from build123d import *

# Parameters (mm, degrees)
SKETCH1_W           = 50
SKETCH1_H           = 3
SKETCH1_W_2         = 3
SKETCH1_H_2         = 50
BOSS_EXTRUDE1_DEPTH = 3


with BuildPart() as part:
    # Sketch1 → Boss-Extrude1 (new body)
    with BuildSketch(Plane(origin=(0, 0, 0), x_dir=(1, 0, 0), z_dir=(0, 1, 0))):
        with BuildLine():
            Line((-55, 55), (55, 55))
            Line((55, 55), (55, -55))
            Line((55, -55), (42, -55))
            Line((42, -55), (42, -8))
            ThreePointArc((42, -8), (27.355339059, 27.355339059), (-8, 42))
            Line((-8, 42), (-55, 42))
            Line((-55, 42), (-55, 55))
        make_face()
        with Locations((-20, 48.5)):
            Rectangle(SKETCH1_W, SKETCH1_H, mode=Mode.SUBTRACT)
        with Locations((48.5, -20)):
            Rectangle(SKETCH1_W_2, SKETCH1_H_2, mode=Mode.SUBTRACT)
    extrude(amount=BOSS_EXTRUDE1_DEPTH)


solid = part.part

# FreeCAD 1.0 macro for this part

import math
import FreeCAD as App
import Part
import Sketcher


def add_polygon(sketch, points):
    """Adds a closed chain of lines whose ends are joined by coincident constraints."""
    first, n = sketch.GeometryCount, len(points)
    for a, b in zip(points, points[1:] + points[:1]):
        sketch.addGeometry(Part.LineSegment(App.Vector(*a, 0), App.Vector(*b, 0)), False)
    for i in range(n):
        sketch.addConstraint(Sketcher.Constraint("Coincident", first + i, 2, first + (i + 1) % n, 1))

doc = App.newDocument("Part")
body = doc.addObject("PartDesign::Body", "Body")

sketch1 = body.newObject("Sketcher::SketchObject", "Sketch")
sketch1.AttachmentSupport = (doc.getObject("XZ_Plane"), [""])
sketch1.MapMode = "FlatFace"
sketch1.addGeometry(Part.LineSegment(App.Vector(55, -55, 0), App.Vector(-55, -55, 0)), False)
sketch1.addGeometry(Part.LineSegment(App.Vector(-55, -55, 0), App.Vector(-55, -42, 0)), False)
sketch1.addGeometry(Part.LineSegment(App.Vector(-55, -42, 0), App.Vector(-8, -42, 0)), False)
sketch1.addGeometry(Part.ArcOfCircle(Part.Circle(App.Vector(-8, 8, 0), App.Vector(0, 0, 1), 50), math.radians(-90), math.radians(0)), False)
sketch1.addGeometry(Part.LineSegment(App.Vector(42, 8, 0), App.Vector(42, 55, 0)), False)
sketch1.addGeometry(Part.LineSegment(App.Vector(42, 55, 0), App.Vector(55, 55, 0)), False)
sketch1.addGeometry(Part.LineSegment(App.Vector(55, 55, 0), App.Vector(55, -55, 0)), False)
add_polygon(sketch1, [(47, 45), (47, -5), (50, -5), (50, 45)])
add_polygon(sketch1, [(-45, -47), (-45, -50), (5, -50), (5, -47)])
sketch1.addConstraint(Sketcher.Constraint("Coincident", 0, 2, 1, 1))
sketch1.addConstraint(Sketcher.Constraint("Coincident", 1, 2, 2, 1))
sketch1.addConstraint(Sketcher.Constraint("Tangent", 2, 2, 3, 1))
sketch1.addConstraint(Sketcher.Constraint("Tangent", 3, 2, 4, 1))
sketch1.addConstraint(Sketcher.Constraint("Coincident", 4, 2, 5, 1))
sketch1.addConstraint(Sketcher.Constraint("Coincident", 5, 2, 6, 1))
sketch1.addConstraint(Sketcher.Constraint("Coincident", 6, 2, 0, 1))
sketch1.addConstraint(Sketcher.Constraint("Horizontal", 0))
sketch1.addConstraint(Sketcher.Constraint("Vertical", 1))
sketch1.addConstraint(Sketcher.Constraint("Horizontal", 2))
sketch1.addConstraint(Sketcher.Constraint("Vertical", 4))
sketch1.addConstraint(Sketcher.Constraint("Horizontal", 5))
sketch1.addConstraint(Sketcher.Constraint("Vertical", 6))
sketch1.addConstraint(Sketcher.Constraint("Vertical", 7))
sketch1.addConstraint(Sketcher.Constraint("Horizontal", 8))
sketch1.addConstraint(Sketcher.Constraint("Vertical", 9))
sketch1.addConstraint(Sketcher.Constraint("Horizontal", 10))
sketch1.addConstraint(Sketcher.Constraint("Vertical", 11))
sketch1.addConstraint(Sketcher.Constraint("Horizontal", 12))
sketch1.addConstraint(Sketcher.Constraint("Vertical", 13))
sketch1.addConstraint(Sketcher.Constraint("Horizontal", 14))
sketch1.addConstraint(Sketcher.Constraint("Symmetric", 0, 2, 5, 2, -1, 1))
sketch1.addConstraint(Sketcher.Constraint("Equal", 5, 1))
sketch1.addConstraint(Sketcher.Constraint("Equal", 2, 4))
sketch1.addConstraint(Sketcher.Constraint("Equal", 14, 7))
sketch1.addConstraint(Sketcher.Constraint("Equal", 10, 11))
sketch1.addConstraint(Sketcher.Constraint("Radius", 3, 50.0))
sketch1.addConstraint(Sketcher.Constraint("DistanceX", 0, 2, 0, 1, 110.0))
sketch1.addConstraint(Sketcher.Constraint("DistanceX", 2, 1, 2, 2, 47.0))
sketch1.addConstraint(Sketcher.Constraint("DistanceX", 8, 1, 8, 2, 3.0))
sketch1.addConstraint(Sketcher.Constraint("DistanceX", 12, 1, 12, 2, 50.0))
sketch1.addConstraint(Sketcher.Constraint("DistanceX", -1, 1, 7, 2, 47.0))
sketch1.addConstraint(Sketcher.Constraint("DistanceY", 7, 2, -1, 1, 5.0))
sketch1.addConstraint(Sketcher.Constraint("DistanceX", 11, 2, -1, 1, 45.0))
sketch1.addConstraint(Sketcher.Constraint("DistanceY", 11, 2, -1, 1, 50.0))
pad1 = body.newObject("PartDesign::Pad", "Pad")
pad1.Profile = sketch1
pad1.Length = 3
pad1.Reversed = True

doc.recompute()
